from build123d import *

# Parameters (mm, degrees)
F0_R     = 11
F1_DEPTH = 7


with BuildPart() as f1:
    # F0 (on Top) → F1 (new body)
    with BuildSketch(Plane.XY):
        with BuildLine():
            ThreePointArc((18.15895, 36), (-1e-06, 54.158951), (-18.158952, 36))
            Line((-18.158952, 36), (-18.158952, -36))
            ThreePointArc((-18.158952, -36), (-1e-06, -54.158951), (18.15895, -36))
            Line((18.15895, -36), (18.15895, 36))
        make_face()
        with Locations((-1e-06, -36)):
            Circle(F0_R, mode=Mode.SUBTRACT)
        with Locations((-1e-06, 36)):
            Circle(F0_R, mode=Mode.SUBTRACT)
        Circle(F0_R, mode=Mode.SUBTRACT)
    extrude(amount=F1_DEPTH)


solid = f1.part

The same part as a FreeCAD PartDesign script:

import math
import FreeCAD as App
import Part
import Sketcher

V = App.Vector
Q = App.Units.Quantity

doc = App.newDocument("Part")
body = doc.addObject("PartDesign::Body", "Body")

sketch1 = body.newObject("Sketcher::SketchObject", "Sketch")
sketch1.AttachmentSupport = (doc.getObject("XY_Plane"), [""])
sketch1.MapMode = "FlatFace"
sketch1.addGeometry([
    Part.ArcOfCircle(Part.Circle(V(0, 36, 0), V(0, 0, 1), 18), math.radians(0), math.radians(180)),
    Part.LineSegment(V(-18, 36, 0), V(-18, -36, 0)),
    Part.ArcOfCircle(Part.Circle(V(0, -36, 0), V(0, 0, 1), 18), math.radians(180), math.radians(360)),
    Part.LineSegment(V(18, -36, 0), V(18, 36, 0)),
    Part.Circle(V(0, -36, 0), V(0, 0, 1), 11),
    Part.Circle(V(0, 36, 0), V(0, 0, 1), 11),
    Part.Circle(V(0, 0, 0), V(0, 0, 1), 11),
], False)
sketch1.addConstraint([
    Sketcher.Constraint("Tangent", 0, 2, 1, 1),
    Sketcher.Constraint("Tangent", 1, 2, 2, 1),
    Sketcher.Constraint("Tangent", 2, 2, 3, 1),
    Sketcher.Constraint("Tangent", 3, 2, 0, 1),
    Sketcher.Constraint("Vertical", 1),
    Sketcher.Constraint("Vertical", 3),
    Sketcher.Constraint("Coincident", 6, 3, -1, 1),
    Sketcher.Constraint("Coincident", 4, 3, 2, 3),
    Sketcher.Constraint("Coincident", 5, 3, 0, 3),
    Sketcher.Constraint("Equal", 4, 5),
    Sketcher.Constraint("Equal", 5, 6),
    Sketcher.Constraint("Symmetric", 0, 3, 2, 3, -1, 1),
    Sketcher.Constraint("Diameter", 4, Q("22 mm")),
    Sketcher.Constraint("DistanceY", 1, 2, 1, 1, Q("72 mm")),
    Sketcher.Constraint("Radius", 0, Q("18.158951 mm")),
])
pad1 = body.newObject("PartDesign::Pad", "Pad")
pad1.Profile = sketch1
pad1.Length = 7

doc.recompute()
